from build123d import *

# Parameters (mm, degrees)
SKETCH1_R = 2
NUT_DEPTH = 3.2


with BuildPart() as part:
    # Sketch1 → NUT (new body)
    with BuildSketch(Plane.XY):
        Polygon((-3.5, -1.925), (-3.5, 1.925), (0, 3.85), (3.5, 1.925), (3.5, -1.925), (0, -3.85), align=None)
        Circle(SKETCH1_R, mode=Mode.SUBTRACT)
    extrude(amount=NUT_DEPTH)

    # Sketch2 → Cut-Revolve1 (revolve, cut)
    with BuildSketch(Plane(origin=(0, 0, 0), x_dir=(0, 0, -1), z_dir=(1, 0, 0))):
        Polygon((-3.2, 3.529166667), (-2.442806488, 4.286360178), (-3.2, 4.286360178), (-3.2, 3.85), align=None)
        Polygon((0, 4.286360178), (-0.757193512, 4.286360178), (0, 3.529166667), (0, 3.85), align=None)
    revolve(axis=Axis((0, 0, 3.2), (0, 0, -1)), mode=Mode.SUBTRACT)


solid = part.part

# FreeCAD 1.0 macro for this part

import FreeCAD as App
import Part
import Sketcher

V = App.Vector
Q = App.Units.Quantity

doc = App.newDocument("Part")
params = doc.addObject("Spreadsheet::Sheet", "Params")
for row, (alias, value) in enumerate([
    ("sketch1_diameter", "4 mm"),
    ("sketch1_height", "3.85 mm"),
    ("pad1_length", "3.2 mm"),
    ("groove_angle", "360 deg"),
], start=1):
    params.set(f"A{row}", alias)
    params.set(f"B{row}", "=" + value)
    params.setAlias(f"B{row}", alias)

body = doc.addObject("PartDesign::Body", "Body")

# Sketch on XY plane
sketch1 = body.newObject("Sketcher::SketchObject", "Sketch")
sketch1.AttachmentSupport = (doc.getObject("XY_Plane"), [""])
sketch1.MapMode = "FlatFace"
sketch1.addGeometry(Part.LineSegment(V(-3.5, 1.9, 0), V(-3.5, -1.9, 0)), False)
sketch1.addGeometry(Part.LineSegment(V(-3.5, -1.9, 0), V(0, -3.9, 0)), False)
sketch1.addGeometry(Part.LineSegment(V(0, -3.9, 0), V(3.5, -1.9, 0)), False)
sketch1.addGeometry(Part.LineSegment(V(3.5, -1.9, 0), V(3.5, 1.9, 0)), False)
sketch1.addGeometry(Part.LineSegment(V(3.5, 1.9, 0), V(0, 3.9, 0)), False)
sketch1.addGeometry(Part.LineSegment(V(0, 3.9, 0), V(-3.5, 1.9, 0)), False)
sketch1.addGeometry(Part.Circle(V(0, 0, 0), V(0, 0, 1), 2), False)
sketch1.addConstraint(Sketcher.Constraint("Coincident", 0, 2, 1, 1))
sketch1.addConstraint(Sketcher.Constraint("Coincident", 1, 2, 2, 1))
sketch1.addConstraint(Sketcher.Constraint("Coincident", 2, 2, 3, 1))
sketch1.addConstraint(Sketcher.Constraint("Coincident", 3, 2, 4, 1))
sketch1.addConstraint(Sketcher.Constraint("Coincident", 4, 2, 5, 1))
sketch1.addConstraint(Sketcher.Constraint("Coincident", 5, 2, 0, 1))
sketch1.addConstraint(Sketcher.Constraint("Vertical", 0))
sketch1.addConstraint(Sketcher.Constraint("Vertical", 3))
sketch1.addConstraint(Sketcher.Constraint("Coincident", 6, 3, -1, 1))
sketch1.addConstraint(Sketcher.Constraint("Symmetric", 0, 2, 3, 2, -1, 1))
sketch1.addConstraint(Sketcher.Constraint("Symmetric", 1, 2, 4, 2, -1, 1))
sketch1.addConstraint(Sketcher.Constraint("PointOnObject", 1, 2, -2))
sketch1.addConstraint(Sketcher.Constraint("Parallel", 2, 5))
sketch1.addConstraint(Sketcher.Constraint("Horizontal", 0, 2, 2, 2))
sketch1.addConstraint(Sketcher.Constraint("Diameter", 6, Q("4 mm")))
sketch1.addConstraint(Sketcher.Constraint("DistanceX", 0, 2, 2, 2, Q("7 mm")))
sketch1.addConstraint(Sketcher.Constraint("DistanceY", 0, 2, 0, 1, Q("3.85 mm")))
sketch1.addConstraint(Sketcher.Constraint("DistanceY", 1, 2, 4, 2, Q("7.7 mm")))
sketch1.setExpression("Constraints[14]", "Params.sketch1_diameter")
sketch1.setExpression("Constraints[16]", "Params.sketch1_height")
pad1 = body.newObject("PartDesign::Pad", "Pad")
pad1.Profile = sketch1
pad1.setExpression("Length", "Params.pad1_length")

# Sketch on YZ plane
sketch2 = body.newObject("Sketcher::SketchObject", "Sketch001")
sketch2.AttachmentSupport = (doc.getObject("YZ_Plane"), [""])
sketch2.MapMode = "FlatFace"
sketch2.addGeometry(Part.LineSegment(V(3.5, 3.2, 0), V(4.3, 2.4, 0)), False)
sketch2.addGeometry(Part.LineSegment(V(4.3, 2.4, 0), V(4.3, 3.2, 0)), False)
sketch2.addGeometry(Part.LineSegment(V(4.3, 3.2, 0), V(3.5, 3.2, 0)), False)
sketch2.addGeometry(Part.LineSegment(V(4.3, 0, 0), V(4.3, 0.8, 0)), False)
sketch2.addGeometry(Part.LineSegment(V(4.3, 0.8, 0), V(3.5, 0, 0)), False)
sketch2.addGeometry(Part.LineSegment(V(3.5, 0, 0), V(4.3, 0, 0)), False)
sketch2.addConstraint(Sketcher.Constraint("Coincident", 0, 2, 1, 1))
sketch2.addConstraint(Sketcher.Constraint("Coincident", 1, 2, 2, 1))
sketch2.addConstraint(Sketcher.Constraint("Coincident", 2, 2, 0, 1))
sketch2.addConstraint(Sketcher.Constraint("Coincident", 3, 2, 4, 1))
sketch2.addConstraint(Sketcher.Constraint("Coincident", 4, 2, 5, 1))
sketch2.addConstraint(Sketcher.Constraint("Coincident", 5, 2, 3, 1))
sketch2.addConstraint(Sketcher.Constraint("Vertical", 1))
sketch2.addConstraint(Sketcher.Constraint("Horizontal", 2))
sketch2.addConstraint(Sketcher.Constraint("Vertical", 3))
sketch2.addConstraint(Sketcher.Constraint("Horizontal", 5))
sketch2.addConstraint(Sketcher.Constraint("PointOnObject", 4, 2, -1))
sketch2.addConstraint(Sketcher.Constraint("Perpendicular", 0, 4))
sketch2.addConstraint(Sketcher.Constraint("Vertical", 1, 2, 3, 2))
sketch2.addConstraint(Sketcher.Constraint("Vertical", 2, 2, 4, 2))
sketch2.addConstraint(Sketcher.Constraint("Equal", 5, 1))
sketch2.addConstraint(Sketcher.Constraint("DistanceY", -1, 1, 1, 2, Q("3.2 mm")))
sketch2.addConstraint(Sketcher.Constraint("DistanceX", 2, 2, 2, 1, Q("0.757194 mm")))
sketch2.addConstraint(Sketcher.Constraint("DistanceX", -1, 1, 0, 2, Q("4.28636 mm")))
groove = body.newObject("PartDesign::Groove", "Groove")
groove.Profile = sketch2
groove.ReferenceAxis = (sketch2, ["V_Axis"])
groove.setExpression("Angle", "Params.groove_angle")

doc.recompute()
